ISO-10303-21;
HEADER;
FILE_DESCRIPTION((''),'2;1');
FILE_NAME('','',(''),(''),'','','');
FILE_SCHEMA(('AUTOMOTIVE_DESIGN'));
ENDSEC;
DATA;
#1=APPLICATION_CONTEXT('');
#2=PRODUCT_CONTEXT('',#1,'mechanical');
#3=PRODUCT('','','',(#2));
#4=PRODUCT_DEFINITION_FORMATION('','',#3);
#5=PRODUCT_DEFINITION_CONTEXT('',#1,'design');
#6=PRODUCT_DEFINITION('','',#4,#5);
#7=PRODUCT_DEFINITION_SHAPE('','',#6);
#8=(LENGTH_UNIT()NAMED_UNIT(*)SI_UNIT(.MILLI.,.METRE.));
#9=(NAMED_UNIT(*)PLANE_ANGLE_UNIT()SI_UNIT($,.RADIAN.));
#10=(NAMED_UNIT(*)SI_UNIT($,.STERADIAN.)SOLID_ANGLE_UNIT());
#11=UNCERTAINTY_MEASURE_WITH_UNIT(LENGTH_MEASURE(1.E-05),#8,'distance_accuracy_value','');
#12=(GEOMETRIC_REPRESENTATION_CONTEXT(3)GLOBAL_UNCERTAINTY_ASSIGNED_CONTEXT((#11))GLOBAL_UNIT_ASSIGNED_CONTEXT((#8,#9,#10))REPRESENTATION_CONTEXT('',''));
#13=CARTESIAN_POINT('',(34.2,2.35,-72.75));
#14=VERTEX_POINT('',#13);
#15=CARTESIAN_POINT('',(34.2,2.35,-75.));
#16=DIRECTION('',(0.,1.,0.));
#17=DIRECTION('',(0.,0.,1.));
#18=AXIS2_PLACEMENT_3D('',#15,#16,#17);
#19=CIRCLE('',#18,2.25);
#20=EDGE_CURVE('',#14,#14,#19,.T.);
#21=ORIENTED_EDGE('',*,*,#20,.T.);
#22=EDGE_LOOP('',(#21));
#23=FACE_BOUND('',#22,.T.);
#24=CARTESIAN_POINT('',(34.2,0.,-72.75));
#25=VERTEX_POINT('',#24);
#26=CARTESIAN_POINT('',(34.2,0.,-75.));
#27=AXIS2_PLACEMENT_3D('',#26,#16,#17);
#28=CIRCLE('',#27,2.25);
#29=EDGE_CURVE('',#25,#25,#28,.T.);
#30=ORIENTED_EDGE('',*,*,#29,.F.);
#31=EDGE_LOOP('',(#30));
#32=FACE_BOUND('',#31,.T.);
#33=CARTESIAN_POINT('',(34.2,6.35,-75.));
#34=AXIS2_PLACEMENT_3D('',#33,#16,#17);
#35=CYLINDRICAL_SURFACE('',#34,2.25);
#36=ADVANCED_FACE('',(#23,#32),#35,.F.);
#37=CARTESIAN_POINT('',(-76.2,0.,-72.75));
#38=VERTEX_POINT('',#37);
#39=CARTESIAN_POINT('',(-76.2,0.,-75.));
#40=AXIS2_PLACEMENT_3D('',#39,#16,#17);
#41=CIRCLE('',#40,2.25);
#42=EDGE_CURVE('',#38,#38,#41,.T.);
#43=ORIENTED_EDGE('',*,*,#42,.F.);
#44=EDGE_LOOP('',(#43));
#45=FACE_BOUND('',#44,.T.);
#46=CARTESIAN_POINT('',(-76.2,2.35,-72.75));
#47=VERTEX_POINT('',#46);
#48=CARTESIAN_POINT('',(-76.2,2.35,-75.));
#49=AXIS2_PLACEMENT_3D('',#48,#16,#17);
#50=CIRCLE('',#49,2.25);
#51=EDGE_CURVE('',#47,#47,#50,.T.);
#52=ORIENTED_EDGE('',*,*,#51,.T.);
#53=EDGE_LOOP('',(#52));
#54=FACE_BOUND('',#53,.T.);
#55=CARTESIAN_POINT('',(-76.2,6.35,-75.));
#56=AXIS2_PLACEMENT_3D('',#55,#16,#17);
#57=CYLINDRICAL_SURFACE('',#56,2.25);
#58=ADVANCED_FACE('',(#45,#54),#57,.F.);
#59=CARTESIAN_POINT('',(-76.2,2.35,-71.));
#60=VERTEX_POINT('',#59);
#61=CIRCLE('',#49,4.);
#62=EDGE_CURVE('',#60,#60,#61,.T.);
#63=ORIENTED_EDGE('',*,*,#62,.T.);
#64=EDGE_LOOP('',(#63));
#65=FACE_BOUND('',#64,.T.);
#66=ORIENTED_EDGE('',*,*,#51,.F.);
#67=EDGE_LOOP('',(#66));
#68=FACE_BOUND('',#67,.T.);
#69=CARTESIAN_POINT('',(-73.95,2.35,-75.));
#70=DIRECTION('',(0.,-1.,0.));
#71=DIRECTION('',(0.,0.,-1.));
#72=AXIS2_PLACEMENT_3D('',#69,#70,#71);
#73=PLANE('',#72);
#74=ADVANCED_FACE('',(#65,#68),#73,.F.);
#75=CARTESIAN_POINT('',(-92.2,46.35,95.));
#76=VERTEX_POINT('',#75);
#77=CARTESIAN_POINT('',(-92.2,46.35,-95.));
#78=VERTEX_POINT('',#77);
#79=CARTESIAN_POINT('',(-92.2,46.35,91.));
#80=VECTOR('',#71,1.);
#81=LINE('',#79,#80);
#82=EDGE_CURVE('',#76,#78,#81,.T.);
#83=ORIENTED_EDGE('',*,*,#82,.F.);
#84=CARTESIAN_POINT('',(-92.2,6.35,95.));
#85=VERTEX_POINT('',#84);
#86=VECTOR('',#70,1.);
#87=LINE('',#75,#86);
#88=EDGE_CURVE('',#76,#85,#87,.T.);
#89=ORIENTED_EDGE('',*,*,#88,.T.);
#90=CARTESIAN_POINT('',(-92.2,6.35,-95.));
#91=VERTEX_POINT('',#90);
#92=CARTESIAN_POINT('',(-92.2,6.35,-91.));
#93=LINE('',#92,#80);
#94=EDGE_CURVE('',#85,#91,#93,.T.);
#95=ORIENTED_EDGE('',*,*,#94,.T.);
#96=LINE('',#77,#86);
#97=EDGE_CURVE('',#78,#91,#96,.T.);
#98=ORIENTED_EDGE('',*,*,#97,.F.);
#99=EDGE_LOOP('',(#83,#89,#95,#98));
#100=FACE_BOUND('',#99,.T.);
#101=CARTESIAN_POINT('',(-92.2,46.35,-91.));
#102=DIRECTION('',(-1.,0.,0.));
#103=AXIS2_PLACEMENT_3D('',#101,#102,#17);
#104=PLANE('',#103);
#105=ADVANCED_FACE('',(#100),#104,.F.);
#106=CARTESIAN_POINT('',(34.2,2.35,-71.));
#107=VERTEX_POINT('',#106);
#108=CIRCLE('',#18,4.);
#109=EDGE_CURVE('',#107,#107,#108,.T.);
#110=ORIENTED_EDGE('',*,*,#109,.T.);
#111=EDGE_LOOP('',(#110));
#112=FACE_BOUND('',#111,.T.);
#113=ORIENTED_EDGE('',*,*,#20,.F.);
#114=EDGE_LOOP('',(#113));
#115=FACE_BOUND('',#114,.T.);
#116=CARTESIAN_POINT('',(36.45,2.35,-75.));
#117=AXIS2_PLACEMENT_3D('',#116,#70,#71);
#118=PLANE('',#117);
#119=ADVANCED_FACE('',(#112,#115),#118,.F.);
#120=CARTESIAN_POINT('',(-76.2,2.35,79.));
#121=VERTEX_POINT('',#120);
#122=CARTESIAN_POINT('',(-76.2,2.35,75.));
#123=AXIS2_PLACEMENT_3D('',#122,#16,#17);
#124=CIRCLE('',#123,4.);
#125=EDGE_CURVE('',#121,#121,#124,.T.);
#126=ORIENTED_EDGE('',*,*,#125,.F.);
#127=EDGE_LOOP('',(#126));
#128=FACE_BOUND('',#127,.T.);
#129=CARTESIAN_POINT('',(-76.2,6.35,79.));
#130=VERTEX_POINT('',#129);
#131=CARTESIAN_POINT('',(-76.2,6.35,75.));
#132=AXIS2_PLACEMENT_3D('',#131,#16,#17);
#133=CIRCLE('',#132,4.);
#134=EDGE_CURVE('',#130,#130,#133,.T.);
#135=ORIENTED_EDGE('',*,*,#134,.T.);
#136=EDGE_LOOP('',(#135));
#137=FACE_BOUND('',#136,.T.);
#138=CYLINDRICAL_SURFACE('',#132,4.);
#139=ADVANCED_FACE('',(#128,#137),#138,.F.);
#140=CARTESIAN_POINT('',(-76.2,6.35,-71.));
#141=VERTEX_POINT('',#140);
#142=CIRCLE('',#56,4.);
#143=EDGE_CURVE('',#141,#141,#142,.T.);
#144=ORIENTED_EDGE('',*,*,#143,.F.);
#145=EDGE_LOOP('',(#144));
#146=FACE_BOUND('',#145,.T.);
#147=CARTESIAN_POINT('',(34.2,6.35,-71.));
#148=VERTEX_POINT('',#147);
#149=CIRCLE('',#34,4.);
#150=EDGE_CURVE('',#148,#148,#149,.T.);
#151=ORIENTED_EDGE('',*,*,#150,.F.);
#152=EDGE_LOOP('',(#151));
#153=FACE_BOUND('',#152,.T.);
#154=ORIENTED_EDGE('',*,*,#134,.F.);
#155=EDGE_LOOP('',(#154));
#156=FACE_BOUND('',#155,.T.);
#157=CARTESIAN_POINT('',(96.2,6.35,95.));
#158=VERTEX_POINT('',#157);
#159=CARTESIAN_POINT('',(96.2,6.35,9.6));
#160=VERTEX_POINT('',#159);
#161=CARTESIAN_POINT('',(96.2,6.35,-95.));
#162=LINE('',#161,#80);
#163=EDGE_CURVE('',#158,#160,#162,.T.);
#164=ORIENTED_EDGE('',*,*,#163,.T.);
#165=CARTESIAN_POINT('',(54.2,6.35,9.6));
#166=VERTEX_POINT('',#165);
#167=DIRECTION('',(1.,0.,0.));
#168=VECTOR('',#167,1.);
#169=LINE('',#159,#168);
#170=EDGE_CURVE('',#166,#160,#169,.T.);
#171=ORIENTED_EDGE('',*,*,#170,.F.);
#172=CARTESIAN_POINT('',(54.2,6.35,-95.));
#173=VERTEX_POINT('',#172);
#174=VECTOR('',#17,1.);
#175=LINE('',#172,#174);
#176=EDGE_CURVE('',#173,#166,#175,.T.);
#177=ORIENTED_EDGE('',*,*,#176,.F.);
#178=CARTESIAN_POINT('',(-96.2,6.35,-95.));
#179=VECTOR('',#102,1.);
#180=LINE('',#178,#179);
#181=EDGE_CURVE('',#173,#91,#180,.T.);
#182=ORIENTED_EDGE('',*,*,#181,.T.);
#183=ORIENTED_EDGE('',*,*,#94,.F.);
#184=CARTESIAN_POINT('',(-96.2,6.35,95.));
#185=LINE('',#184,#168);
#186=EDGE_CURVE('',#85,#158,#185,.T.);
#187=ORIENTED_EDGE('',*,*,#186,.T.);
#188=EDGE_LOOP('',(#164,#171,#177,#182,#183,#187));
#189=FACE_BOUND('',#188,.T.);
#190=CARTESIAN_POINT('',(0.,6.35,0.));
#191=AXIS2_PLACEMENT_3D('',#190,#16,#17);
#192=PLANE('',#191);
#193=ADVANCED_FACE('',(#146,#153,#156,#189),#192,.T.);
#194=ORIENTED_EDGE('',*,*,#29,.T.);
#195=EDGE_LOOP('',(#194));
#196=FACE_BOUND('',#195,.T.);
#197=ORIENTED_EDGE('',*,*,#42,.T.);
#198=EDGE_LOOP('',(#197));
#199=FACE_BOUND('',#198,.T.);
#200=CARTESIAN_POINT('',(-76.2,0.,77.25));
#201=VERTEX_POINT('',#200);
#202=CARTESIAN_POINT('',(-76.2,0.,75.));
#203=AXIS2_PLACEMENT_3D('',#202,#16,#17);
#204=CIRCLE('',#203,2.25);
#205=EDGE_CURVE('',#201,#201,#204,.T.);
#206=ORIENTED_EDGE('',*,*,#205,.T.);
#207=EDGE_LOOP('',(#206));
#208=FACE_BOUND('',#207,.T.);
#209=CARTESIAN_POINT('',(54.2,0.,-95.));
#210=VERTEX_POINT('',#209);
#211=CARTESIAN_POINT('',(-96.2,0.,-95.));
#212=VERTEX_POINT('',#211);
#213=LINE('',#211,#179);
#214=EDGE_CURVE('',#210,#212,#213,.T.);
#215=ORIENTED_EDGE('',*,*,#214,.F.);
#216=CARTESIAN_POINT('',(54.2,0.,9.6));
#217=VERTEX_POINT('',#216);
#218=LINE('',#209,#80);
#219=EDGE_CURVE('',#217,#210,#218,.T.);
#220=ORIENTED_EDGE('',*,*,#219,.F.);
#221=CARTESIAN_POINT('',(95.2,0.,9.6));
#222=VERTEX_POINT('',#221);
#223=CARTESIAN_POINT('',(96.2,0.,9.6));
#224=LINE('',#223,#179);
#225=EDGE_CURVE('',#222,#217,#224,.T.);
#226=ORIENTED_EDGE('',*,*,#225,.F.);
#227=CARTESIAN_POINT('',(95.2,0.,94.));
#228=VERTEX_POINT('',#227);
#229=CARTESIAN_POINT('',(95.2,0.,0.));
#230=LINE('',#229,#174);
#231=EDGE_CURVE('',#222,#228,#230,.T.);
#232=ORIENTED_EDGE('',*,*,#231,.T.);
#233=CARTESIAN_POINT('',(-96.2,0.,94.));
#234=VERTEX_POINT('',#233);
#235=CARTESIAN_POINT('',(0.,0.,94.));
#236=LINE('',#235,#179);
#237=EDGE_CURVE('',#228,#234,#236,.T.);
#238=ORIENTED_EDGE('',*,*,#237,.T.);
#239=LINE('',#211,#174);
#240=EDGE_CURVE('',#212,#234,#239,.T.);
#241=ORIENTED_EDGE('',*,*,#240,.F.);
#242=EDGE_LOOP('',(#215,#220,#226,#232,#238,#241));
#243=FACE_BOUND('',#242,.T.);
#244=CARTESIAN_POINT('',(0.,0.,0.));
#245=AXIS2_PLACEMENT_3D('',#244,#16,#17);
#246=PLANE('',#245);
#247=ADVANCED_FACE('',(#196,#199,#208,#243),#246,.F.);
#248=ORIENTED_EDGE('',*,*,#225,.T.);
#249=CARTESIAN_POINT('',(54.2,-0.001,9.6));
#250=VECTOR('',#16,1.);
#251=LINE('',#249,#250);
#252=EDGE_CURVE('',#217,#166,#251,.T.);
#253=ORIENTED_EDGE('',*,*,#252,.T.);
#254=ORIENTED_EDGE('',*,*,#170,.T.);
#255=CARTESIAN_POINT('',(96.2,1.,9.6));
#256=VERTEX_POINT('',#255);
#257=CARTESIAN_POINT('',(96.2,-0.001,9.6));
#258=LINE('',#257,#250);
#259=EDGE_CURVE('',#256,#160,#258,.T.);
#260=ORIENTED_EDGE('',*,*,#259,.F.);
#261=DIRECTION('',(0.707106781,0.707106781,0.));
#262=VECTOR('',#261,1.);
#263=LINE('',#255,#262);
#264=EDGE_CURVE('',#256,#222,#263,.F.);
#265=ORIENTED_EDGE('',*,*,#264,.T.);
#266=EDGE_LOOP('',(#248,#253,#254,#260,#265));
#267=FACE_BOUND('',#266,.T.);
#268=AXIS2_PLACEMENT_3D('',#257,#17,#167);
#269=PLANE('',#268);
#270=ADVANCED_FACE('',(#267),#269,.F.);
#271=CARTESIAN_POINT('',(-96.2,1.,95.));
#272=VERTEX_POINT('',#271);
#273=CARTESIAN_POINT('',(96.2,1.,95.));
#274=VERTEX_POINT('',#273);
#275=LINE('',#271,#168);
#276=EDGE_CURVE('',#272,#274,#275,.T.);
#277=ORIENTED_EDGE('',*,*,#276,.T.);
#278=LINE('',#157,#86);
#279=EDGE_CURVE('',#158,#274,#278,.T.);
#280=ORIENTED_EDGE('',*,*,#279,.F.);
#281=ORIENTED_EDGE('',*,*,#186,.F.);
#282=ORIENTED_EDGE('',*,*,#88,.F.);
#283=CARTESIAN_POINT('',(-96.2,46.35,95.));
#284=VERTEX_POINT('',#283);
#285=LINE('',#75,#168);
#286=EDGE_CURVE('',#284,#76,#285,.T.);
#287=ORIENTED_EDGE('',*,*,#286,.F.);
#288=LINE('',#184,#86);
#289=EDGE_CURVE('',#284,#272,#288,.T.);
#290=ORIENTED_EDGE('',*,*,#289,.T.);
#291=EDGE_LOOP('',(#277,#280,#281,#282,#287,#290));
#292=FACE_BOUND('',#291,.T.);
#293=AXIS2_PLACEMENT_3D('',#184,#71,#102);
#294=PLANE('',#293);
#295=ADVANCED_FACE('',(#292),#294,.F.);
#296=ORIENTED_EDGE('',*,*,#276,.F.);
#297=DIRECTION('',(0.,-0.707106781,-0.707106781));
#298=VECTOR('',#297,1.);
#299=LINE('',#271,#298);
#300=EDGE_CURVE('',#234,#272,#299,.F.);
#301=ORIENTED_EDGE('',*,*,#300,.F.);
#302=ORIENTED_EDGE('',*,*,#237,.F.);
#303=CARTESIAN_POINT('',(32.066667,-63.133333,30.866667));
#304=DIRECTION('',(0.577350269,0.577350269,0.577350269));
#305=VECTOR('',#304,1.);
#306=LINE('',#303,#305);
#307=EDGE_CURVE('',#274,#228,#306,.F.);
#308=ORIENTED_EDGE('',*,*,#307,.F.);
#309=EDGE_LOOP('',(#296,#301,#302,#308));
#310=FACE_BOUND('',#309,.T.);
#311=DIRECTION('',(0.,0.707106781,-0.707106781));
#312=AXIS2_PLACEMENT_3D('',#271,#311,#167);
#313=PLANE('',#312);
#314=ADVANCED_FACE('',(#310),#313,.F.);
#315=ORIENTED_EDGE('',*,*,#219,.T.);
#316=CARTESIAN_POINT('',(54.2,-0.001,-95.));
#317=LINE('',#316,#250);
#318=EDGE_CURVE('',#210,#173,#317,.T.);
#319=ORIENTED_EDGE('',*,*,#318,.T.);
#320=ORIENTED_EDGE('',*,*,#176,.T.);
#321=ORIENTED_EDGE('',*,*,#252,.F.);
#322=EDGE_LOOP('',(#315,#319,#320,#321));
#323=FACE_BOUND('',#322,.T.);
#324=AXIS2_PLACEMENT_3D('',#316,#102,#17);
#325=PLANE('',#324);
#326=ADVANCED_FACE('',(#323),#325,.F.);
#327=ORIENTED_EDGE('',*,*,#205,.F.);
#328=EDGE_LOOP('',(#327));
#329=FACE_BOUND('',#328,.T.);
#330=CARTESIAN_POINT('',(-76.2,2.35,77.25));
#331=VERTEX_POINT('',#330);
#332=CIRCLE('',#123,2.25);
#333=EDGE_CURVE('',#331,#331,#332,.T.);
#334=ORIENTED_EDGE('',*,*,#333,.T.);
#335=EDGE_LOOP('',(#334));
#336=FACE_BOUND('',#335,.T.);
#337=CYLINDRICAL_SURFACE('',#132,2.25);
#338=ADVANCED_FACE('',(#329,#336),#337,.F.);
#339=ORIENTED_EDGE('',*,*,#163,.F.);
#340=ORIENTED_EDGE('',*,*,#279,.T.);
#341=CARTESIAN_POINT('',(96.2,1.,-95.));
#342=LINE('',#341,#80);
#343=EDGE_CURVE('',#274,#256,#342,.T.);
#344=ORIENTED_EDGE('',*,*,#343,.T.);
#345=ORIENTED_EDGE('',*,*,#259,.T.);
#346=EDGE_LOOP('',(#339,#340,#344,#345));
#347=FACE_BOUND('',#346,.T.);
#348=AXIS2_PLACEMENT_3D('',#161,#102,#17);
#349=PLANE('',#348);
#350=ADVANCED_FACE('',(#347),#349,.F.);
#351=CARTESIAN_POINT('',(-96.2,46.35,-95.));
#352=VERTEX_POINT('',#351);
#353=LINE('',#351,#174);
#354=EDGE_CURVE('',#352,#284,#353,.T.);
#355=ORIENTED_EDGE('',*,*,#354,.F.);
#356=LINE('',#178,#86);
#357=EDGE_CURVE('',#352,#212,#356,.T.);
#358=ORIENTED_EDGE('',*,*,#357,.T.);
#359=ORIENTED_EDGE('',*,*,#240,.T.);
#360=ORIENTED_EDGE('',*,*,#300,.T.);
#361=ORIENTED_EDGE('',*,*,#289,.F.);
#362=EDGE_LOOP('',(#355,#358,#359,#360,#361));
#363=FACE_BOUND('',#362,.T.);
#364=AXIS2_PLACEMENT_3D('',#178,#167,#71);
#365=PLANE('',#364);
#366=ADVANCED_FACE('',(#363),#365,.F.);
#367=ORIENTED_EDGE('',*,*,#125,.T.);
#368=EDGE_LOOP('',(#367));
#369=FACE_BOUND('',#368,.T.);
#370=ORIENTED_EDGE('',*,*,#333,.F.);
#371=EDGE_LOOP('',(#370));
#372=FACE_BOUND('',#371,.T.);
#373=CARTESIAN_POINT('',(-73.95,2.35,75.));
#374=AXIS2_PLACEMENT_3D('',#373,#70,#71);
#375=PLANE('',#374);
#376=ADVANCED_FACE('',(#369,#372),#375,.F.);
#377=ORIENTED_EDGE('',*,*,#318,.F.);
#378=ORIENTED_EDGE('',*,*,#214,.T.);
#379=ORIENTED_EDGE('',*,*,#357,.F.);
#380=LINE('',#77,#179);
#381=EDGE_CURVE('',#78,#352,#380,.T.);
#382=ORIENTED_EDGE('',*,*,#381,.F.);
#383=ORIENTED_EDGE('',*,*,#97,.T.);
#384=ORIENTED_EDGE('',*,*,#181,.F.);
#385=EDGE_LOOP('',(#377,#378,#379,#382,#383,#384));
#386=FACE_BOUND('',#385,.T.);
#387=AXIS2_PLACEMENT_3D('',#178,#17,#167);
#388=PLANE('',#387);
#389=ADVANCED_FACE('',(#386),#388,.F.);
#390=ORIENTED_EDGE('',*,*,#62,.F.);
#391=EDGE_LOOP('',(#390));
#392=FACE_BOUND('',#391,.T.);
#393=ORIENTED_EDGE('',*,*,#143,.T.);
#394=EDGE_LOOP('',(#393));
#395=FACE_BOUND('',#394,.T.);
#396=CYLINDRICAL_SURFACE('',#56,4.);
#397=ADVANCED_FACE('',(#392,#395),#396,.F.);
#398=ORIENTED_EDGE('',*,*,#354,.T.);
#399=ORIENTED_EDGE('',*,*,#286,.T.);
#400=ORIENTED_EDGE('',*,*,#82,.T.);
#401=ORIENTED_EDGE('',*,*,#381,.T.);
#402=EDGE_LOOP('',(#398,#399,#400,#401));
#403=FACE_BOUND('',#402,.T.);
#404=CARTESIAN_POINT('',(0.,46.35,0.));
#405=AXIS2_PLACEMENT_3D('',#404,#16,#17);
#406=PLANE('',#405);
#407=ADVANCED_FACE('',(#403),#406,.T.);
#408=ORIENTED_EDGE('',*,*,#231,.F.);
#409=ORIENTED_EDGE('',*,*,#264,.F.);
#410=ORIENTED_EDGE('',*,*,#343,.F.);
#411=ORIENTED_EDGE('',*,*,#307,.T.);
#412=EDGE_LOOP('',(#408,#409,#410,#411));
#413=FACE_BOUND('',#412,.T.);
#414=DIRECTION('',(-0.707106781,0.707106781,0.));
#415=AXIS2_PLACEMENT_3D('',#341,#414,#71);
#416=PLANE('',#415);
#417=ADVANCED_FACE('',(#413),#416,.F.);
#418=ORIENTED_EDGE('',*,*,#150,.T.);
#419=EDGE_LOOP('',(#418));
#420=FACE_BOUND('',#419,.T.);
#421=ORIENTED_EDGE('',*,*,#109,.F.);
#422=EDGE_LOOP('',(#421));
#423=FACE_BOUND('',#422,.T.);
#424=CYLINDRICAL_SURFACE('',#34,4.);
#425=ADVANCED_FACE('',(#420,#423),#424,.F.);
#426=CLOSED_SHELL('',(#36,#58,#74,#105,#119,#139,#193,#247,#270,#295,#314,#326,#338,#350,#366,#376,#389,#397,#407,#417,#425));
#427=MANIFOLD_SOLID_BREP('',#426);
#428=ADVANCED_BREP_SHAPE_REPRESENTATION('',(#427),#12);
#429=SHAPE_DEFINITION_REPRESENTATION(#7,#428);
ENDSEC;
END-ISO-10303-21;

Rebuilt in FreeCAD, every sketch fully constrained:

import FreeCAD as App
import Part
import Sketcher
from FreeCAD import Vector


def edges_at(feature, points):
    """Names of the edges that pass closest to the given points."""
    edges = feature.Shape.Edges
    near = lambda p: min(range(len(edges)), key=lambda i: edges[i].distToShape(Part.Vertex(*p))[0])
    return sorted({f"Edge{near(p) + 1}" for p in points})


def add_polygon(sketch, points):
    """Adds a closed chain of lines whose ends are joined by coincident constraints."""
    first, n = sketch.GeometryCount, len(points)
    for a, b in zip(points, points[1:] + points[:1]):
        sketch.addGeometry(Part.LineSegment(App.Vector(*a, 0), App.Vector(*b, 0)), False)
    for i in range(n):
        sketch.addConstraint(Sketcher.Constraint("Coincident", first + i, 2, first + (i + 1) % n, 1))

doc = App.newDocument("Part")
body = doc.addObject("PartDesign::Body", "Body")

sketch1 = body.newObject("Sketcher::SketchObject", "Sketch")
sketch1.AttachmentSupport = (doc.getObject("XZ_Plane"), [""])
sketch1.MapMode = "FlatFace"
add_polygon(sketch1, [(-96, -95), (-96, 95), (96, 95), (96, -95)])
sketch1.addConstraint(Sketcher.Constraint("Vertical", 0))
sketch1.addConstraint(Sketcher.Constraint("Horizontal", 1))
sketch1.addConstraint(Sketcher.Constraint("Vertical", 2))
sketch1.addConstraint(Sketcher.Constraint("Horizontal", 3))
sketch1.addConstraint(Sketcher.Constraint("Symmetric", 0, 2, 2, 2, -1, 1))
sketch1.addConstraint(Sketcher.Constraint("DistanceY", 0, 1, 0, 2, 190.0))
sketch1.addConstraint(Sketcher.Constraint("DistanceX", 1, 1, 1, 2, 192.4))
pad1 = body.newObject("PartDesign::Pad", "Pad")
pad1.Profile = sketch1
pad1.Length = 6.35
pad1.Reversed = True

sketch2 = body.newObject("Sketcher::SketchObject", "Sketch001")
sketch2.AttachmentSupport = (doc.getObject("XZ_Plane"), [""])
sketch2.MapMode = "FlatFace"
sketch2.AttachmentOffset = App.Placement(Vector(0, 0, -6.35), App.Rotation())
add_polygon(sketch2, [(-92.2, 95), (-92.2, -95), (-96.2, -95), (-96.2, 95)])
sketch2.addConstraint(Sketcher.Constraint("Vertical", 0))
sketch2.addConstraint(Sketcher.Constraint("Horizontal", 1))
sketch2.addConstraint(Sketcher.Constraint("Vertical", 2))
sketch2.addConstraint(Sketcher.Constraint("Horizontal", 3))
sketch2.addConstraint(Sketcher.Constraint("DistanceX", 1, 2, 1, 1, 4.0))
sketch2.addConstraint(Sketcher.Constraint("DistanceY", 0, 2, 0, 1, 190.0))
sketch2.addConstraint(Sketcher.Constraint("DistanceY", 0, 2, -1, 1, 95.0))
sketch2.addConstraint(Sketcher.Constraint("DistanceX", 0, 2, -1, 1, 92.2))
pad2 = body.newObject("PartDesign::Pad", "Pad001")
pad2.Profile = sketch2
pad2.Length = 40
pad2.Reversed = True

sketch3 = body.newObject("Sketcher::SketchObject", "Sketch002")
sketch3.AttachmentSupport = (doc.getObject("XZ_Plane"), [""])
sketch3.MapMode = "FlatFace"
sketch3.AttachmentOffset = App.Placement(Vector(0, 0, -6.35), App.Rotation())
add_polygon(sketch3, [(54, -95), (54, 10), (96, 10), (96, -95)])
sketch3.addConstraint(Sketcher.Constraint("Vertical", 0))
sketch3.addConstraint(Sketcher.Constraint("Horizontal", 1))
sketch3.addConstraint(Sketcher.Constraint("Vertical", 2))
sketch3.addConstraint(Sketcher.Constraint("Horizontal", 3))
sketch3.addConstraint(Sketcher.Constraint("DistanceX", 1, 1, 1, 2, 42.0))
sketch3.addConstraint(Sketcher.Constraint("DistanceY", 0, 1, 0, 2, 104.6))
sketch3.addConstraint(Sketcher.Constraint("DistanceY", 2, 2, -1, 1, 95.0))
sketch3.addConstraint(Sketcher.Constraint("DistanceX", -1, 1, 0, 2, 54.2))
pocket1 = body.newObject("PartDesign::Pocket", "Pocket")
pocket1.Profile = sketch3
pocket1.Type = "UpToFirst"
pocket1.Reversed = True

sketch4 = body.newObject("Sketcher::SketchObject", "Sketch003")
sketch4.AttachmentSupport = (doc.getObject("XZ_Plane"), [""])
sketch4.MapMode = "FlatFace"
sketch4.AttachmentOffset = App.Placement(Vector(0, 0, -6.35), App.Rotation())
sketch4.addGeometry(Part.Circle(Vector(34.2, -75, 0), Vector(0, 0, 1), 2.2), False)
sketch4.addGeometry(Part.Circle(Vector(-76.2, -75, 0), Vector(0, 0, 1), 2.2), False)
sketch4.addGeometry(Part.Circle(Vector(-76.2, 75, 0), Vector(0, 0, 1), 2.2), False)
sketch4.addConstraint(Sketcher.Constraint("Equal", 0, 1))
sketch4.addConstraint(Sketcher.Constraint("Equal", 1, 2))
sketch4.addConstraint(Sketcher.Constraint("Symmetric", 1, 3, 2, 3, -1))
sketch4.addConstraint(Sketcher.Constraint("Horizontal", 0, 3, 1, 3))
sketch4.addConstraint(Sketcher.Constraint("Diameter", 0, 4.5))
sketch4.addConstraint(Sketcher.Constraint("DistanceY", 0, 3, -1, 1, 75.0))
sketch4.addConstraint(Sketcher.Constraint("DistanceX", -1, 1, 0, 3, 34.2))
sketch4.addConstraint(Sketcher.Constraint("DistanceX", 1, 3, -1, 1, 76.2))
doc.recompute()
hole = body.newObject("PartDesign::Hole", "Hole")
hole.Profile = sketch4
hole.ThreadType = "None"
hole.Diameter = 4.5
hole.DepthType = "Dimension"
hole.Depth = 6.35
hole.DrillPoint = "Flat"
hole.HoleCutType = "Counterbore"
hole.HoleCutDiameter = 8
hole.HoleCutDepth = 4
hole.Reversed = True
doc.recompute()

chamfer = body.newObject("PartDesign::Chamfer", "Chamfer")
chamfer.Base = (hole, edges_at(hole, [(0, 0, 95), (96.2, 0, 52.3)]))
chamfer.Size = 1

doc.recompute()
